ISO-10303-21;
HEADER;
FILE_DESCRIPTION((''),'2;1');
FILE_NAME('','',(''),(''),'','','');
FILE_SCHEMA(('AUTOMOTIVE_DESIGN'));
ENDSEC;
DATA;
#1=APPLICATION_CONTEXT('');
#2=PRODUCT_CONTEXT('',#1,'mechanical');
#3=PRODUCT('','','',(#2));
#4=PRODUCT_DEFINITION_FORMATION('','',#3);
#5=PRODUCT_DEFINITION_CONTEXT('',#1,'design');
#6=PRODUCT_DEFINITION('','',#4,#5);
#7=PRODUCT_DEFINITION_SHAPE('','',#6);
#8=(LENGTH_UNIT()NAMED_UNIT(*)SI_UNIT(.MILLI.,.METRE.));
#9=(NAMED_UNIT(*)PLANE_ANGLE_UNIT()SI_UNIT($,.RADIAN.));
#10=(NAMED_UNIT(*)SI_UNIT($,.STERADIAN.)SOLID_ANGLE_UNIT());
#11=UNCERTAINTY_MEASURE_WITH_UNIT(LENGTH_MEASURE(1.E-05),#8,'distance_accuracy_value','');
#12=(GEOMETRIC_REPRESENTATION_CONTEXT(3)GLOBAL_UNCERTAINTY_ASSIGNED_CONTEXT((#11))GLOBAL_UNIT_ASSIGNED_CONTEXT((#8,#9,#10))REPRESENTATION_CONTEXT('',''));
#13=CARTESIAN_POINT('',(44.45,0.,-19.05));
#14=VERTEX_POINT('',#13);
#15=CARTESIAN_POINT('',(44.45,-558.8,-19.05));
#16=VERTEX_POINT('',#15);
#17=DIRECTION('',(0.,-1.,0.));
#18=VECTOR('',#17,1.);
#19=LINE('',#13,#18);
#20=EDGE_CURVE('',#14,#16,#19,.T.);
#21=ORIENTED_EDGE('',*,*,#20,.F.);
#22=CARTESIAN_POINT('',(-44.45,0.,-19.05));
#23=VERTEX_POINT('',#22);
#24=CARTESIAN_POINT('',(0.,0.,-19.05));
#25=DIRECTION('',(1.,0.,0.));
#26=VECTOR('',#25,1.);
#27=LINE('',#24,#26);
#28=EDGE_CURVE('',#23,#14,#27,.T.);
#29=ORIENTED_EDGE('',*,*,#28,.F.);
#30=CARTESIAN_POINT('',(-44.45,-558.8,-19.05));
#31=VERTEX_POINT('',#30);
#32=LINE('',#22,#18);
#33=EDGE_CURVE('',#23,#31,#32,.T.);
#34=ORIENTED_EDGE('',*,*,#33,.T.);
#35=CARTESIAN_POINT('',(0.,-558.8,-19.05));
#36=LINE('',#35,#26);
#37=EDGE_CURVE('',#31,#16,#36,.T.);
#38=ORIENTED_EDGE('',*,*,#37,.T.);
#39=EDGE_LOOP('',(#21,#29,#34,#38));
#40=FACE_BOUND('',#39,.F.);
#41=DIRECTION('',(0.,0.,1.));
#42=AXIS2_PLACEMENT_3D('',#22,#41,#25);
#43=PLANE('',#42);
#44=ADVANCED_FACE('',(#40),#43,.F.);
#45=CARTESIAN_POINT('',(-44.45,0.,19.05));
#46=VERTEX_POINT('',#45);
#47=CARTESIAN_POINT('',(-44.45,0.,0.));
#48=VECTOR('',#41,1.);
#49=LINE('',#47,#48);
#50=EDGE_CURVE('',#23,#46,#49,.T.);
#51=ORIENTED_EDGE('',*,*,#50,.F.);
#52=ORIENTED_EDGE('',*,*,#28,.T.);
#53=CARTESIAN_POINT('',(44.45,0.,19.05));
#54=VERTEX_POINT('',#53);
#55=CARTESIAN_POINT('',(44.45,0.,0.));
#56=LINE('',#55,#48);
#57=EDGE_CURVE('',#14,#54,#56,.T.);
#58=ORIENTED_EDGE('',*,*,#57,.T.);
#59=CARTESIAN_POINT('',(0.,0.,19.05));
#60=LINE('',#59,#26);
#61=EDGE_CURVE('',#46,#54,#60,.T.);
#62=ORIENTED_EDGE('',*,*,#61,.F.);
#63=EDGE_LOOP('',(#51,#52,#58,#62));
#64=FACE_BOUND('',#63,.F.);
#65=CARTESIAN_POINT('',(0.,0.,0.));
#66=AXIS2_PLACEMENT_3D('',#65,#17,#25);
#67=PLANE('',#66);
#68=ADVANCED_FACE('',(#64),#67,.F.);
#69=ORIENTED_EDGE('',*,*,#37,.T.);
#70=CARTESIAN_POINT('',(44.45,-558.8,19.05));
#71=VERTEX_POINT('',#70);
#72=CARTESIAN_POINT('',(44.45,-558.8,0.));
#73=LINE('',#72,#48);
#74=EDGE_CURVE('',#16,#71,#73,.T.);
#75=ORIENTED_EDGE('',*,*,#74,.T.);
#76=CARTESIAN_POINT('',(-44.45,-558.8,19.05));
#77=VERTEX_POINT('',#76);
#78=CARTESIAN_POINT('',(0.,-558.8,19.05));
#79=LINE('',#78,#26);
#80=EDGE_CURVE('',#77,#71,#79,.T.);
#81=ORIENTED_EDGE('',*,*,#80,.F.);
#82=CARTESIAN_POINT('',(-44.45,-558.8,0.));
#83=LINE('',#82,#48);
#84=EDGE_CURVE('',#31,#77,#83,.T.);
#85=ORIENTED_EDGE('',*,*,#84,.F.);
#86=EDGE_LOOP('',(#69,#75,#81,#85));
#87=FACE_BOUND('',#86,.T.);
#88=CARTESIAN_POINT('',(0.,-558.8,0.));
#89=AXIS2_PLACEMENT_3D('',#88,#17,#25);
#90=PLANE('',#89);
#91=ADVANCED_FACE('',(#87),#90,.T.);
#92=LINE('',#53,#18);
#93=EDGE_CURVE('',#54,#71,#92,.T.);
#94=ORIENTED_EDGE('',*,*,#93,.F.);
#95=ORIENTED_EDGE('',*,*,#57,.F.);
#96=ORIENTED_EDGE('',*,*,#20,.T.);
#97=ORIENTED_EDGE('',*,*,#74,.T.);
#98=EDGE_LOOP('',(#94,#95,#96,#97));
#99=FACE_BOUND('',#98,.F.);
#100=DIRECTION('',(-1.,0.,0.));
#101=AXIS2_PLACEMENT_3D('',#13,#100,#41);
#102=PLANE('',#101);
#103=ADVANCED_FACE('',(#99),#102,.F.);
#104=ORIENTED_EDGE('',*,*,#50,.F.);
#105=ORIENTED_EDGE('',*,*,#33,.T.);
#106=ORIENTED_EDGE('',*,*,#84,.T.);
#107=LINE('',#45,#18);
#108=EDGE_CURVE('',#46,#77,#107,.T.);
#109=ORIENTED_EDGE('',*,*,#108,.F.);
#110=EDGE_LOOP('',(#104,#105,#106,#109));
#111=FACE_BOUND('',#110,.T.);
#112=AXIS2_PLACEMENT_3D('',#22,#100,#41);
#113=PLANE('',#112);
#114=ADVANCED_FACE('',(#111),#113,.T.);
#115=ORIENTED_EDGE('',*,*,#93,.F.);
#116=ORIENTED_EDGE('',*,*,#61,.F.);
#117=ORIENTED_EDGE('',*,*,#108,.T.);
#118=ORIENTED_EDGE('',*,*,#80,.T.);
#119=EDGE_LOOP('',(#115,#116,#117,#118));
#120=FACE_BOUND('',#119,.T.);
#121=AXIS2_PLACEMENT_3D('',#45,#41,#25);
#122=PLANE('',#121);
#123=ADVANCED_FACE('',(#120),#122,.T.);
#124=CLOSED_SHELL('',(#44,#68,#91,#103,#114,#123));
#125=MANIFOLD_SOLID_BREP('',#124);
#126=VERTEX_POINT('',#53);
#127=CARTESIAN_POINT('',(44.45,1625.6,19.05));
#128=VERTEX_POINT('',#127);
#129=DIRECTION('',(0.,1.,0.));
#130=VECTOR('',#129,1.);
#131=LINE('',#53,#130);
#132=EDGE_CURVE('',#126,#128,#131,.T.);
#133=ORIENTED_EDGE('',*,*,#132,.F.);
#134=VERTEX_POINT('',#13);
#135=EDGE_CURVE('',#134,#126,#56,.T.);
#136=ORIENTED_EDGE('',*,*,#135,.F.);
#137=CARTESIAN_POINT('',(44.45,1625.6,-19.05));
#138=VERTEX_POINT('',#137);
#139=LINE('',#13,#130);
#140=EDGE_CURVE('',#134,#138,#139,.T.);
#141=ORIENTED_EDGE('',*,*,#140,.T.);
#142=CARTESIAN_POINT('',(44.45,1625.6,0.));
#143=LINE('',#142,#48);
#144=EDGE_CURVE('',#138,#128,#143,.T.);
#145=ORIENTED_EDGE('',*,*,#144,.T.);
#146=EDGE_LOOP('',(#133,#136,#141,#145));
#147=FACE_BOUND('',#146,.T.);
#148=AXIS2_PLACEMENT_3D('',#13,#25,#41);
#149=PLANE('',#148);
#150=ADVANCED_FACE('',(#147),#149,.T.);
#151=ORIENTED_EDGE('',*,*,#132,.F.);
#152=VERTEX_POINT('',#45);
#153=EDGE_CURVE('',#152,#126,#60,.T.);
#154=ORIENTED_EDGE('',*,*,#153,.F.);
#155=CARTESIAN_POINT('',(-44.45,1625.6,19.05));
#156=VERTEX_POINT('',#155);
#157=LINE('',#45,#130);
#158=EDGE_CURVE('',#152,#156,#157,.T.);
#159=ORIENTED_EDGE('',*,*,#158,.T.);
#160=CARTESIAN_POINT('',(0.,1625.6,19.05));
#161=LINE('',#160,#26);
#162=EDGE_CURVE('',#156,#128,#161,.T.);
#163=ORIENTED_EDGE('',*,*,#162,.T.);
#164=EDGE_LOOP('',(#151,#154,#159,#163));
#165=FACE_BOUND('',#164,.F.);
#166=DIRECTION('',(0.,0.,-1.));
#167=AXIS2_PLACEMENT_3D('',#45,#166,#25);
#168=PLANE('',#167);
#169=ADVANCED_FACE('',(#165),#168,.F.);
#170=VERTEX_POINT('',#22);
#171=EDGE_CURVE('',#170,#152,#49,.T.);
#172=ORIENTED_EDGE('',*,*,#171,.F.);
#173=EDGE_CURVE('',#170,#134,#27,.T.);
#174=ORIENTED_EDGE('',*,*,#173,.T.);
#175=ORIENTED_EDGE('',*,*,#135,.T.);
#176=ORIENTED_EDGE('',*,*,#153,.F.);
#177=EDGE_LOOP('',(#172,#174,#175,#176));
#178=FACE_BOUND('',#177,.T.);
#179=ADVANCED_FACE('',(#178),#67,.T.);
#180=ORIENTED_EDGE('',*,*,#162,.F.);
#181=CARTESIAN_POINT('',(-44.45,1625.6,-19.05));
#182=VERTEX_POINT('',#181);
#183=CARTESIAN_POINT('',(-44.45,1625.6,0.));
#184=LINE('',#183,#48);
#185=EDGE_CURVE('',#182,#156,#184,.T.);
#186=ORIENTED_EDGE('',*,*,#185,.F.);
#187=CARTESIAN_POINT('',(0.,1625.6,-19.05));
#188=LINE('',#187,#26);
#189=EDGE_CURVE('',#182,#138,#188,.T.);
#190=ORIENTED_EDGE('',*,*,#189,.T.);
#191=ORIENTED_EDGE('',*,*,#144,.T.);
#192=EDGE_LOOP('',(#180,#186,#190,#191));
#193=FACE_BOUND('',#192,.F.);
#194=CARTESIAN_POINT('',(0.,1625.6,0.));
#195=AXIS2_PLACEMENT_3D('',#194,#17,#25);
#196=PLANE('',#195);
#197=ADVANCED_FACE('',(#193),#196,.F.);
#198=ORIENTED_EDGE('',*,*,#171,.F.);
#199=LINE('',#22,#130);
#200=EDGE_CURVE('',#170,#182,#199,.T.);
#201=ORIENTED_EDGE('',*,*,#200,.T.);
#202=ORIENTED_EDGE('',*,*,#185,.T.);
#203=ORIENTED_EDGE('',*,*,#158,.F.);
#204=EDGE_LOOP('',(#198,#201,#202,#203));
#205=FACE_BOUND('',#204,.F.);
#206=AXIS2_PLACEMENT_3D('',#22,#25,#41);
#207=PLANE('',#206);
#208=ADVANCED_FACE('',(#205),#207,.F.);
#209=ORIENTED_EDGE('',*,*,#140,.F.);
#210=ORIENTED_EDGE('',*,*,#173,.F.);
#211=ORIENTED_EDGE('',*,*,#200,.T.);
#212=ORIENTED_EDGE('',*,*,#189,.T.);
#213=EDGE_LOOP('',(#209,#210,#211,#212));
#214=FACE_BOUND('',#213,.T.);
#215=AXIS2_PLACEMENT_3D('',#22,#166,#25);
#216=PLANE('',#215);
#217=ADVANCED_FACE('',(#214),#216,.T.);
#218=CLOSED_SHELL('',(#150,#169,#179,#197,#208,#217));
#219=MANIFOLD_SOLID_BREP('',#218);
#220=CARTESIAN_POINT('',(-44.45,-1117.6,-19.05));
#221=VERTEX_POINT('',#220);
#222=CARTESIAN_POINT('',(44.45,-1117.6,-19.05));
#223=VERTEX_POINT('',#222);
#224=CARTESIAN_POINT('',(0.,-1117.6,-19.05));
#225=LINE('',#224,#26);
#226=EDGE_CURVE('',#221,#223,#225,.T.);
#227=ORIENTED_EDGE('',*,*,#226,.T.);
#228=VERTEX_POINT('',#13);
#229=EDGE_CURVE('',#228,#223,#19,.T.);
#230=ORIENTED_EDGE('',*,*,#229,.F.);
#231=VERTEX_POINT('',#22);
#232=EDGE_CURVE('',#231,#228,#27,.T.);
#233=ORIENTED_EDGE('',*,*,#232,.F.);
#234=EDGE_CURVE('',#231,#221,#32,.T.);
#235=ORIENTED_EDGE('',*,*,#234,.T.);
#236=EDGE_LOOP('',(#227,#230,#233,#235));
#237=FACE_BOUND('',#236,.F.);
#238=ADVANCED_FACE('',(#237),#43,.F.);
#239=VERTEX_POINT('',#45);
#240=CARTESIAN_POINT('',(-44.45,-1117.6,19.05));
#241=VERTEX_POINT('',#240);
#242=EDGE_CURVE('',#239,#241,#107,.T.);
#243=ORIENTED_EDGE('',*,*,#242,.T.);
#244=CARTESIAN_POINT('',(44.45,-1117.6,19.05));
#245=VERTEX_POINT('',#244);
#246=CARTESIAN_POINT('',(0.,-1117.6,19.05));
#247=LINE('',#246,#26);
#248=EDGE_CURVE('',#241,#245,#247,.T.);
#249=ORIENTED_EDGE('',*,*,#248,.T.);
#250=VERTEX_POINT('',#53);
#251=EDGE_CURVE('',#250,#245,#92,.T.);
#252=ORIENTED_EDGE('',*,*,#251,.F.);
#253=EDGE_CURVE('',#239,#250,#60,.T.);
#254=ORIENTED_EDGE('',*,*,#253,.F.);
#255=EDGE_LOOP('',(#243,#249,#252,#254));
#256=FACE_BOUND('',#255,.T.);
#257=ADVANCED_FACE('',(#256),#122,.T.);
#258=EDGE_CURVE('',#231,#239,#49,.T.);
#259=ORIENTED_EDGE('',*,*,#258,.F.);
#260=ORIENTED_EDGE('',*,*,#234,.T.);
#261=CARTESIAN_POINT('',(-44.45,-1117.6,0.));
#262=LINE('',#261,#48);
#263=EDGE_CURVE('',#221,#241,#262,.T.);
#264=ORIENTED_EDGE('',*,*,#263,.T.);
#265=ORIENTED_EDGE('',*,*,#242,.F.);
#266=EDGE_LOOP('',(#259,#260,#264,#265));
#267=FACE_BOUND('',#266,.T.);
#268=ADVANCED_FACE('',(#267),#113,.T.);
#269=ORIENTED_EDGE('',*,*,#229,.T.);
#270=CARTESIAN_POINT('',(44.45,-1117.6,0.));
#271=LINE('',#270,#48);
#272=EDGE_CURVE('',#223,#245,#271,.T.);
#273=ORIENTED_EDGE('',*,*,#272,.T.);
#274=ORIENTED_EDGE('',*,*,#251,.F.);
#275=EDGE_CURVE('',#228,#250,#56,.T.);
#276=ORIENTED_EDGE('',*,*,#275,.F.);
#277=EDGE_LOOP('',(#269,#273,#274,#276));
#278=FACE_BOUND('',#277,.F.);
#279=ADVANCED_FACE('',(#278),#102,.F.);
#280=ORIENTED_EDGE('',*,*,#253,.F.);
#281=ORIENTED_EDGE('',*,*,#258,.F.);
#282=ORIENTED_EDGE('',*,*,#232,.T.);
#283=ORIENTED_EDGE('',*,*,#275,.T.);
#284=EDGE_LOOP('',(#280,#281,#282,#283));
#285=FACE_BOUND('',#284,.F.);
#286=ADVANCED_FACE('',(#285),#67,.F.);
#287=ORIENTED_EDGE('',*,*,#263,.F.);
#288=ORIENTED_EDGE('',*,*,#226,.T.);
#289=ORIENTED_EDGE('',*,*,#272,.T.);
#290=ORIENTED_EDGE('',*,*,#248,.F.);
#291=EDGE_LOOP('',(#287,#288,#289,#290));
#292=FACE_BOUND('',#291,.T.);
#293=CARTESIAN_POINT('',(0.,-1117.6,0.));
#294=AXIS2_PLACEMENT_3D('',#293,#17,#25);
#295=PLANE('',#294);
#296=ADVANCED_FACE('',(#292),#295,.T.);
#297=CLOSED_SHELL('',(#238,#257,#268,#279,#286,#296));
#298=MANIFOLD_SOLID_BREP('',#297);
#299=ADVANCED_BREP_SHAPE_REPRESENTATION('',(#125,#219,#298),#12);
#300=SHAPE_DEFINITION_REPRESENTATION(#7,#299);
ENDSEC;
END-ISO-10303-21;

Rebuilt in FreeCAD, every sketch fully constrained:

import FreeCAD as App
import Part
import Sketcher

V = App.Vector
Q = App.Units.Quantity


def add_polygon(sketch, points):
    """Adds a closed chain of lines whose ends are joined by coincident constraints."""
    first, n = sketch.GeometryCount, len(points)
    for a, b in zip(points, points[1:] + points[:1]):
        sketch.addGeometry(Part.LineSegment(App.Vector(*a, 0), App.Vector(*b, 0)), False)
    for i in range(n):
        sketch.addConstraint(Sketcher.Constraint("Coincident", first + i, 2, first + (i + 1) % n, 1))

doc = App.newDocument("Part")
body = doc.addObject("PartDesign::Body", "Body")

# Sketch on XZ plane
sketch1 = body.newObject("Sketcher::SketchObject", "Sketch")
sketch1.AttachmentSupport = (doc.getObject("XZ_Plane"), [""])
sketch1.MapMode = "FlatFace"
add_polygon(sketch1, [(-44.45, 19.05), (-44.45, -19.05), (44.45, -19.05), (44.45, 19.05)])  # lines 0-3
sketch1.addConstraint([
    Sketcher.Constraint("Vertical", 0),
    Sketcher.Constraint("Horizontal", 1),
    Sketcher.Constraint("Vertical", 2),
    Sketcher.Constraint("Horizontal", 3),
    Sketcher.Constraint("Symmetric", 0, 2, 2, 2, -1, 1),
    Sketcher.Constraint("DistanceX", 1, 1, 1, 2, Q("3.5 in")),
    Sketcher.Constraint("DistanceY", 0, 2, 0, 1, Q("1.5 in")),
])
pad1 = body.newObject("PartDesign::Pad", "Pad")
pad1.Profile = sketch1
pad1.Length = Q("64 in")
pad1.Reversed = True
body2 = doc.addObject("PartDesign::Body", "Body001")

# Sketch on XZ plane
sketch2 = body2.newObject("Sketcher::SketchObject", "Sketch001")
sketch2.AttachmentSupport = (doc.getObject("XZ_Plane001"), [""])
sketch2.MapMode = "FlatFace"
add_polygon(sketch2, [(-44.45, 19.05), (-44.45, -19.05), (44.45, -19.05), (44.45, 19.05)])  # lines 0-3
sketch2.addConstraint([
    Sketcher.Constraint("Vertical", 0),
    Sketcher.Constraint("Horizontal", 1),
    Sketcher.Constraint("Vertical", 2),
    Sketcher.Constraint("Horizontal", 3),
    Sketcher.Constraint("Symmetric", 0, 2, 2, 2, -1, 1),
    Sketcher.Constraint("DistanceX", 1, 1, 1, 2, Q("3.5 in")),
    Sketcher.Constraint("DistanceY", 0, 2, 0, 1, Q("1.5 in")),
])
pad2 = body2.newObject("PartDesign::Pad", "Pad001")
pad2.Profile = sketch2
pad2.Length = Q("44 in")
body3 = doc.addObject("PartDesign::Body", "Body002")

# Sketch on XZ plane
sketch3 = body3.newObject("Sketcher::SketchObject", "Sketch002")
sketch3.AttachmentSupport = (doc.getObject("XZ_Plane002"), [""])
sketch3.MapMode = "FlatFace"
add_polygon(sketch3, [(-44.45, 19.05), (-44.45, -19.05), (44.45, -19.05), (44.45, 19.05)])  # lines 0-3
sketch3.addConstraint([
    Sketcher.Constraint("Vertical", 0),
    Sketcher.Constraint("Horizontal", 1),
    Sketcher.Constraint("Vertical", 2),
    Sketcher.Constraint("Horizontal", 3),
    Sketcher.Constraint("Symmetric", 0, 2, 2, 2, -1, 1),
    Sketcher.Constraint("DistanceX", 1, 1, 1, 2, Q("3.5 in")),
    Sketcher.Constraint("DistanceY", 0, 2, 0, 1, Q("1.5 in")),
])
pad3 = body3.newObject("PartDesign::Pad", "Pad002")
pad3.Profile = sketch3
pad3.Length = Q("22 in")

doc.recompute()
